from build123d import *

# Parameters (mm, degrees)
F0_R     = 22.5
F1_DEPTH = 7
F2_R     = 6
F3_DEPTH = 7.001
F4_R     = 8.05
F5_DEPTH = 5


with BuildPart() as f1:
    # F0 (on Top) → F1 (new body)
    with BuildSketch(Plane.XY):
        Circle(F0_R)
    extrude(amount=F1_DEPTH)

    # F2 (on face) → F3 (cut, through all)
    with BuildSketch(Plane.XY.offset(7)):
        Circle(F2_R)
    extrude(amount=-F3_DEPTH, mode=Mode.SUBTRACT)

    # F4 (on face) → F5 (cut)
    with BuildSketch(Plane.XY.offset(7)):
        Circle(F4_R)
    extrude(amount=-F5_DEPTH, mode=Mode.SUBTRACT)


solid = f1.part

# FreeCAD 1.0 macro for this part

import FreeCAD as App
import Part
import Sketcher
from FreeCAD import Vector

doc = App.newDocument("Part")
body = doc.addObject("PartDesign::Body", "Body")

# Sketch on XY plane
sketch1 = body.newObject("Sketcher::SketchObject", "Sketch")
sketch1.AttachmentSupport = (doc.getObject("XY_Plane"), [""])
sketch1.MapMode = "FlatFace"
sketch1.addGeometry(Part.Circle(Vector(0, 0, 0), Vector(0, 0, 1), 22), False)
sketch1.addConstraint(Sketcher.Constraint("Coincident", 0, 3, -1, 1))
sketch1.addConstraint(Sketcher.Constraint("Diameter", 0, 45.0))
pad1 = body.newObject("PartDesign::Pad", "Pad")
pad1.Profile = sketch1
pad1.Length = 7

# Sketch on XY plane
sketch2 = body.newObject("Sketcher::SketchObject", "Sketch001")
sketch2.AttachmentSupport = (doc.getObject("XY_Plane"), [""])
sketch2.MapMode = "FlatFace"
sketch2.AttachmentOffset = App.Placement(Vector(0, 0, 7), App.Rotation())
sketch2.addGeometry(Part.Circle(Vector(0, 0, 0), Vector(0, 0, 1), 6), False)
sketch2.addConstraint(Sketcher.Constraint("Coincident", 0, 3, -1, 1))
sketch2.addConstraint(Sketcher.Constraint("Diameter", 0, 12.0))
pocket1 = body.newObject("PartDesign::Pocket", "Pocket")
pocket1.Profile = sketch2
pocket1.Type = "ThroughAll"

# Sketch on XY plane
sketch3 = body.newObject("Sketcher::SketchObject", "Sketch002")
sketch3.AttachmentSupport = (doc.getObject("XY_Plane"), [""])
sketch3.MapMode = "FlatFace"
sketch3.AttachmentOffset = App.Placement(Vector(0, 0, 7), App.Rotation())
sketch3.addGeometry(Part.Circle(Vector(0, 0, 0), Vector(0, 0, 1), 8), False)
sketch3.addConstraint(Sketcher.Constraint("Coincident", 0, 3, -1, 1))
sketch3.addConstraint(Sketcher.Constraint("Diameter", 0, 16.1))
pocket2 = body.newObject("PartDesign::Pocket", "Pocket001")
pocket2.Profile = sketch3
pocket2.Length = 5

doc.recompute()
